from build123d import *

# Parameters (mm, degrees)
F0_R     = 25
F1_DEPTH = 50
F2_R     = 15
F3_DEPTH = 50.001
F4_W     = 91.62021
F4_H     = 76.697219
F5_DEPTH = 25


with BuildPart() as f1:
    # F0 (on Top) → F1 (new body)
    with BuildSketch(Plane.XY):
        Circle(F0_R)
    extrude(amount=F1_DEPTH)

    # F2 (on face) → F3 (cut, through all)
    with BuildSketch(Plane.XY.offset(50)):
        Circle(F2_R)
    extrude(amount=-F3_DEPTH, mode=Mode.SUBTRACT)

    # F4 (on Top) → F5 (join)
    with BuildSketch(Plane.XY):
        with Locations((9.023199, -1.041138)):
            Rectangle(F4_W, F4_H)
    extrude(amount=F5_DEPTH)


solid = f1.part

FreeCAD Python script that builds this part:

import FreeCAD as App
import Part
import Sketcher
from FreeCAD import Vector
Q = App.Units.Quantity

doc = App.newDocument("Part")
body = doc.addObject("PartDesign::Body", "Body")

# Sketch on XY plane
sketch1 = body.newObject("Sketcher::SketchObject", "Sketch")
sketch1.AttachmentSupport = (doc.getObject("XY_Plane"), [""])
sketch1.MapMode = "FlatFace"
sketch1.addGeometry(Part.Circle(Vector(0, 0, 0), Vector(0, 0, 1), 25), False)
sketch1.addConstraint([
    Sketcher.Constraint("Coincident", 0, 3, -1, 1),
    Sketcher.Constraint("Diameter", 0, Q("50 mm")),
])
pad1 = body.newObject("PartDesign::Pad", "Pad")
pad1.Profile = sketch1
pad1.Length = 50

# Sketch on XY plane
sketch2 = body.newObject("Sketcher::SketchObject", "Sketch001")
sketch2.AttachmentSupport = (doc.getObject("XY_Plane"), [""])
sketch2.MapMode = "FlatFace"
sketch2.AttachmentOffset = App.Placement(Vector(0, 0, 50), App.Rotation())
sketch2.addGeometry(Part.Circle(Vector(0, 0, 0), Vector(0, 0, 1), 15), False)
sketch2.addConstraint([
    Sketcher.Constraint("Coincident", 0, 3, -1, 1),
    Sketcher.Constraint("Diameter", 0, Q("30 mm")),
])
pocket1 = body.newObject("PartDesign::Pocket", "Pocket")
pocket1.Profile = sketch2
pocket1.Type = "ThroughAll"

# Sketch on XY plane
sketch3 = body.newObject("Sketcher::SketchObject", "Sketch002")
sketch3.AttachmentSupport = (doc.getObject("XY_Plane"), [""])
sketch3.MapMode = "FlatFace"
sketch3.addGeometry([
    Part.LineSegment(Vector(-37, 37, 0), Vector(-37, -39, 0)),
    Part.LineSegment(Vector(-37, -39, 0), Vector(55, -39, 0)),
    Part.LineSegment(Vector(55, -39, 0), Vector(55, 37, 0)),
    Part.LineSegment(Vector(55, 37, 0), Vector(-37, 37, 0)),
], False)
sketch3.addConstraint([
    Sketcher.Constraint("Coincident", 0, 2, 1, 1),
    Sketcher.Constraint("Coincident", 1, 2, 2, 1),
    Sketcher.Constraint("Coincident", 2, 2, 3, 1),
    Sketcher.Constraint("Coincident", 3, 2, 0, 1),
    Sketcher.Constraint("Vertical", 0),
    Sketcher.Constraint("Horizontal", 1),
    Sketcher.Constraint("Vertical", 2),
    Sketcher.Constraint("Horizontal", 3),
    Sketcher.Constraint("DistanceX", 1, 1, 1, 2, Q("91.62021 mm")),
    Sketcher.Constraint("DistanceY", 0, 2, 0, 1, Q("76.697219 mm")),
    Sketcher.Constraint("DistanceY", -1, 1, 2, 2, Q("37.307471 mm")),
    Sketcher.Constraint("DistanceX", 0, 2, -1, 1, Q("36.786906 mm")),
])
pad2 = body.newObject("PartDesign::Pad", "Pad001")
pad2.Profile = sketch3
pad2.Length = 25

doc.recompute()
